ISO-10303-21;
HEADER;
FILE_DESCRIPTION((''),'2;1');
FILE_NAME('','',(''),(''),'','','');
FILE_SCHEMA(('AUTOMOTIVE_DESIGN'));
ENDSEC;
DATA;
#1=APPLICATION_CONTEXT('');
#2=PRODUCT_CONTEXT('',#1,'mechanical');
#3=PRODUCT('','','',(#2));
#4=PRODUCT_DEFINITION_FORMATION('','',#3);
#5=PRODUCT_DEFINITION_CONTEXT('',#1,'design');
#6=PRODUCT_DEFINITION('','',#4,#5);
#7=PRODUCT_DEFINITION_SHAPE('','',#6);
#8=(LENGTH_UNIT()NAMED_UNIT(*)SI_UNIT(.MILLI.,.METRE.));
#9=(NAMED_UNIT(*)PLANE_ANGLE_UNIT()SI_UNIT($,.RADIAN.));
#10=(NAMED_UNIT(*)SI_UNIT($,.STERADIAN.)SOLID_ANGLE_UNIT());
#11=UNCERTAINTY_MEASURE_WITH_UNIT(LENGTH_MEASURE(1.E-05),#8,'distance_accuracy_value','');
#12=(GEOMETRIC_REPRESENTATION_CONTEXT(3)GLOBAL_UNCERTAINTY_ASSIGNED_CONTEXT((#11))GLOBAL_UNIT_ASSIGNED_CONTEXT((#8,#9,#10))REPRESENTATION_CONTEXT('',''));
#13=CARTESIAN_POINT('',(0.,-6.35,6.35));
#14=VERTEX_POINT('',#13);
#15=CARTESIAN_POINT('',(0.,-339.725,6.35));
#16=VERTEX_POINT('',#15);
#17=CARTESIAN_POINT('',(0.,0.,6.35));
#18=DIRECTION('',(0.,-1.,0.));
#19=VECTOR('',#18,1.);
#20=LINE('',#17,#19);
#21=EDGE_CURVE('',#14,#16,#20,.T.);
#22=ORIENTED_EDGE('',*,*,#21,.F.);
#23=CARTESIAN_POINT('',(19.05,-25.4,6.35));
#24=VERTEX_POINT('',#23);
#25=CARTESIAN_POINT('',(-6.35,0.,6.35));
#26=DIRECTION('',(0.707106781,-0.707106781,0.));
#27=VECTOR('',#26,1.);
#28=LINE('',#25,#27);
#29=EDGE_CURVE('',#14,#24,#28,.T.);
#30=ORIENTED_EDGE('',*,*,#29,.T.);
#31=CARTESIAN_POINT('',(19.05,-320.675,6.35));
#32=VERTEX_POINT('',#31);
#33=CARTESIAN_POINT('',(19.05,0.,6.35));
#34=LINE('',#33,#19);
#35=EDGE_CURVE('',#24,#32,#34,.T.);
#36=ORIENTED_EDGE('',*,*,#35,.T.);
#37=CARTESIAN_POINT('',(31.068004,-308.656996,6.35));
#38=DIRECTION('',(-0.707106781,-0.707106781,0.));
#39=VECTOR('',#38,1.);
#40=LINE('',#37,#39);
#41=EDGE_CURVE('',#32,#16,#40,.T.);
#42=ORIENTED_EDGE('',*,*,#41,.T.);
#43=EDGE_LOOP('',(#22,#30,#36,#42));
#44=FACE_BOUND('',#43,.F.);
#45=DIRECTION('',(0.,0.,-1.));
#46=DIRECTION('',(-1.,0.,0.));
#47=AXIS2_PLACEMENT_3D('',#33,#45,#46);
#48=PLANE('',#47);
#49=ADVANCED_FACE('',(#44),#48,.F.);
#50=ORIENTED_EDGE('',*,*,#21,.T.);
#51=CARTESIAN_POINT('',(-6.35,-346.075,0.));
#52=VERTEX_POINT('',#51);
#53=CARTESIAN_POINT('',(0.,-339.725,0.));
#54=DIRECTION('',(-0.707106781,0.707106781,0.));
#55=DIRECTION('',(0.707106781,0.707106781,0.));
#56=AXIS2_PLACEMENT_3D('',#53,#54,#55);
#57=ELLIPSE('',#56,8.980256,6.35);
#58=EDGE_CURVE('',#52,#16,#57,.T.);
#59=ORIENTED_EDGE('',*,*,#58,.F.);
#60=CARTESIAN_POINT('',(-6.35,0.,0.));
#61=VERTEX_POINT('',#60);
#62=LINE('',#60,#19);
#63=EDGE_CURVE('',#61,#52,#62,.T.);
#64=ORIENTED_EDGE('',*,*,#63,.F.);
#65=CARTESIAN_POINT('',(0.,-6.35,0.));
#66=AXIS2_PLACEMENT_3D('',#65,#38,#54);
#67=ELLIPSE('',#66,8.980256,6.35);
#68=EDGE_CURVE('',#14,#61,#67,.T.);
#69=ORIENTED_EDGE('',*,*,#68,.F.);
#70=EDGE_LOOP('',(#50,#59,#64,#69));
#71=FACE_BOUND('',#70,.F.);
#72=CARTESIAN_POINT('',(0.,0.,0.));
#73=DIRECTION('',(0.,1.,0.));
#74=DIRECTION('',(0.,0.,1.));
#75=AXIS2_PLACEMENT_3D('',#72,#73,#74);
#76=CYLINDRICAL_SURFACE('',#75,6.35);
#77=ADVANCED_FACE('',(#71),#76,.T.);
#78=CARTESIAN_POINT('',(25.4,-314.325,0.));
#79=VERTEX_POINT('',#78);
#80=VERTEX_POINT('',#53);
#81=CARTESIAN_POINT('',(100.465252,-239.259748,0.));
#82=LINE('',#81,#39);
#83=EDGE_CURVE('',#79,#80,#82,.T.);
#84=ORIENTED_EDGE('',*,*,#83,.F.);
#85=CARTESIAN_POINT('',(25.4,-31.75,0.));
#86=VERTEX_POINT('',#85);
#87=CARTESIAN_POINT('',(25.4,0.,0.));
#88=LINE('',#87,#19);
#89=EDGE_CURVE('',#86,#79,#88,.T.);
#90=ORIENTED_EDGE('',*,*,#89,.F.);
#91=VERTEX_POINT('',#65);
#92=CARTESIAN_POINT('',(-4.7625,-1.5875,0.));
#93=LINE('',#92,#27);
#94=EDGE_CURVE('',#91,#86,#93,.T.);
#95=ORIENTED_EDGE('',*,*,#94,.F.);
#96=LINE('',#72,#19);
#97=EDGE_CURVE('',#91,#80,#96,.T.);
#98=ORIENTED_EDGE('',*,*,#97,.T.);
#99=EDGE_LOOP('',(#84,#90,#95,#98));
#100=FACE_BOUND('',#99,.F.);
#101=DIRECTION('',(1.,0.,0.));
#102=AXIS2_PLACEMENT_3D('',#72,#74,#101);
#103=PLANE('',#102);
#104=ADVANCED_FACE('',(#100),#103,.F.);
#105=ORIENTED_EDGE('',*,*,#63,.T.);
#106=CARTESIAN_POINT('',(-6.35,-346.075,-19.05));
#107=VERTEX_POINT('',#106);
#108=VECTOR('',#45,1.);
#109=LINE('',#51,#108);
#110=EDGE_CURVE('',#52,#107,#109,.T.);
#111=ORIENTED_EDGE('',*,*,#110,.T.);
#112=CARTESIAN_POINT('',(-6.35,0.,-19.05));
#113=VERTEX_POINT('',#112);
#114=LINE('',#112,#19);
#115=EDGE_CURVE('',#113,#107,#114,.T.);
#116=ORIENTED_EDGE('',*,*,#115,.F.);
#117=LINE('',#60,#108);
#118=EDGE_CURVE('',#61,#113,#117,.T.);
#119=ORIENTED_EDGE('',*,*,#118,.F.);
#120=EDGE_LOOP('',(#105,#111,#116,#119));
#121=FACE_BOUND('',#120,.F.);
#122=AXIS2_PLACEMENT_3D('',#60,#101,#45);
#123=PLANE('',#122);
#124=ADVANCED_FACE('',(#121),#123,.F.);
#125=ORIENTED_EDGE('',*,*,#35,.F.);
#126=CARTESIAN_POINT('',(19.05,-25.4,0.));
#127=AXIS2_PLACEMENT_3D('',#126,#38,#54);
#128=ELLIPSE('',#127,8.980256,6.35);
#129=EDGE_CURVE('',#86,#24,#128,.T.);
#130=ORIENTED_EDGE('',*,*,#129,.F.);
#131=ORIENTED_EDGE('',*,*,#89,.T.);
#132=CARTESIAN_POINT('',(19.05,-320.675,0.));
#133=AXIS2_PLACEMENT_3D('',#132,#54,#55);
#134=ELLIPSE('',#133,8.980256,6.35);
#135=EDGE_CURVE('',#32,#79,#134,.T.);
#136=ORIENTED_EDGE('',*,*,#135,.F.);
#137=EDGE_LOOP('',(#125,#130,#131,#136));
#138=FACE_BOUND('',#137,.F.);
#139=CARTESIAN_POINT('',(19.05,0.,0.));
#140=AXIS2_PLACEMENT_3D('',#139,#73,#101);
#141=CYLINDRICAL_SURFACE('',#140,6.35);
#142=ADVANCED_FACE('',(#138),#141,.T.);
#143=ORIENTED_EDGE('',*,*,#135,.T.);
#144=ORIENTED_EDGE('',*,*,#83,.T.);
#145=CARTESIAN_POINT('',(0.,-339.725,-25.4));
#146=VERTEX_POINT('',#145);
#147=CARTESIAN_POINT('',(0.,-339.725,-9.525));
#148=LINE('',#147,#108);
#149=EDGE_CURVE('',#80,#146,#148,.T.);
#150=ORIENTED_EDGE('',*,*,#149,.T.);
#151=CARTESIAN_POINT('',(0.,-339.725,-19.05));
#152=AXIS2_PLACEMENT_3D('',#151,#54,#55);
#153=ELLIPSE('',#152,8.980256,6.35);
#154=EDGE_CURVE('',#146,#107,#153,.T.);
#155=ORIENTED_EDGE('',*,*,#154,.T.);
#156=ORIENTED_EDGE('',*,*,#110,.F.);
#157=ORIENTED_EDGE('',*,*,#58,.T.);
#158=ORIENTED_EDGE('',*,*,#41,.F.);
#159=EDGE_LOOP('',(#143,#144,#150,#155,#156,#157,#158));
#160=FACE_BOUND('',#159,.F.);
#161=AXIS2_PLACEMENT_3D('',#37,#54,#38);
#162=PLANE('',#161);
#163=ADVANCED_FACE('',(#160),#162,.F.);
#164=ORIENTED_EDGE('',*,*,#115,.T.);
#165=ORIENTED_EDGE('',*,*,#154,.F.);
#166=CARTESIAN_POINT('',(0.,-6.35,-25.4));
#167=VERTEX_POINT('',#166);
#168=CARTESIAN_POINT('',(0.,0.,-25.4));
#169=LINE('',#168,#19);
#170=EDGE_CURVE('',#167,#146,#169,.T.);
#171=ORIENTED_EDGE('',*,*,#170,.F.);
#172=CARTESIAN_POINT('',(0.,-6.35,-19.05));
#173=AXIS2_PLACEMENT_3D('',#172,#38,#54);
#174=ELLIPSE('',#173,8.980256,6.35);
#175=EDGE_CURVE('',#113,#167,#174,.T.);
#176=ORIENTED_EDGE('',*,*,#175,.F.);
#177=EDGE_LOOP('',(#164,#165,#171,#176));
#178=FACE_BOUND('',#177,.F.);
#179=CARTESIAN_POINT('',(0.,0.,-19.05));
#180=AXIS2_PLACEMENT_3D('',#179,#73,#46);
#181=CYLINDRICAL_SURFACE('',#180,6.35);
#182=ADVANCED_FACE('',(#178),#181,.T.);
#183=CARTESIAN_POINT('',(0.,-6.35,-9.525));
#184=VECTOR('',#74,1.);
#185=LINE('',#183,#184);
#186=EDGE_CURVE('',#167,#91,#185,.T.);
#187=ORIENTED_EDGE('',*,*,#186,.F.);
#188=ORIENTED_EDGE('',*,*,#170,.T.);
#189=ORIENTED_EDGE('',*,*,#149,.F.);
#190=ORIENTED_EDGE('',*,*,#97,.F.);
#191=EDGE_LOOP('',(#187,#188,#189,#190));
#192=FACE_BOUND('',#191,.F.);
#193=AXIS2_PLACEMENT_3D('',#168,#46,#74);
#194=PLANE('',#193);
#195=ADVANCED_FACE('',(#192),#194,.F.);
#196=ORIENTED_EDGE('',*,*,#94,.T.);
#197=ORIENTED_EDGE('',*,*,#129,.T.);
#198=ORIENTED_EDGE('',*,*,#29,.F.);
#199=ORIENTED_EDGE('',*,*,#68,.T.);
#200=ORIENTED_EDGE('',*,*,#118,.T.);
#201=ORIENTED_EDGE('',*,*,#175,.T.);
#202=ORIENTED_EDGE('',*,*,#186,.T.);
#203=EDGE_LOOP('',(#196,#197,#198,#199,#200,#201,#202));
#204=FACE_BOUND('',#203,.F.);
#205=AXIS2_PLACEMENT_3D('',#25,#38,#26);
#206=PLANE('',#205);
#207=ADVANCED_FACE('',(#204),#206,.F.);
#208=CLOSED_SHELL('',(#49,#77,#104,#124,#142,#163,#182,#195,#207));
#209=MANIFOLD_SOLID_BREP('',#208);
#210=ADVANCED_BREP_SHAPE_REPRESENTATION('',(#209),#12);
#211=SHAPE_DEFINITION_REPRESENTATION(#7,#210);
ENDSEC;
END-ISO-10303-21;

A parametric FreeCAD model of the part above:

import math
import FreeCAD as App
import Part
import Sketcher
Q = App.Units.Quantity

doc = App.newDocument("Part")
body = doc.addObject("PartDesign::Body", "Body")

# Sketch on XZ plane
sketch1 = body.newObject("Sketcher::SketchObject", "Sketch")
sketch1.AttachmentSupport = (doc.getObject("XZ_Plane"), [""])
sketch1.MapMode = "FlatFace"
sketch1.addGeometry([
    Part.LineSegment(App.Vector(0, -25.4, 0), App.Vector(0, 0, 0)),  # 0
    Part.LineSegment(App.Vector(0, 0, 0), App.Vector(25.4, 0, 0)),  # 1
    Part.ArcOfCircle(Part.Circle(App.Vector(19.05, 0, 0), App.Vector(0, 0, 1), 6.35), math.radians(0), math.radians(90)),  # 2
    Part.LineSegment(App.Vector(19.05, 6.35, 0), App.Vector(0, 6.35, 0)),  # 3
    Part.ArcOfCircle(Part.Circle(App.Vector(0, 0, 0), App.Vector(0, 0, 1), 6.35), math.radians(90), math.radians(180)),  # 4
    Part.LineSegment(App.Vector(-6.35, 0, 0), App.Vector(-6.35, -19.05, 0)),  # 5
    Part.ArcOfCircle(Part.Circle(App.Vector(0, -19.05, 0), App.Vector(0, 0, 1), 6.35), math.radians(180), math.radians(270)),  # 6
], False)
sketch1.addConstraint([
    Sketcher.Constraint("Coincident", 0, 2, 1, 1),
    Sketcher.Constraint("Coincident", 1, 2, 2, 1),
    Sketcher.Constraint("Tangent", 2, 2, 3, 1),
    Sketcher.Constraint("Tangent", 3, 2, 4, 1),
    Sketcher.Constraint("Tangent", 4, 2, 5, 1),
    Sketcher.Constraint("Tangent", 5, 2, 6, 1),
    Sketcher.Constraint("Coincident", 6, 2, 0, 1),
    Sketcher.Constraint("Vertical", 0),
    Sketcher.Constraint("Horizontal", 1),
    Sketcher.Constraint("Horizontal", 3),
    Sketcher.Constraint("Vertical", 5),
    Sketcher.Constraint("Coincident", 4, 3, -1, 1),
    Sketcher.Constraint("Coincident", 0, 2, -1, 1),
    Sketcher.Constraint("Equal", 2, 4),
    Sketcher.Constraint("Equal", 4, 6),
    Sketcher.Constraint("Equal", 1, 0),
    Sketcher.Constraint("DistanceX", 1, 1, 1, 2, Q("1 in")),
    Sketcher.Constraint("Radius", 2, Q("0.25 in")),
])
pad1 = body.newObject("PartDesign::Pad", "Pad")
pad1.Profile = sketch1
pad1.Length = Q("13.625 in")

# Sketch on XY plane
sketch2 = body.newObject("Sketcher::SketchObject", "Sketch001")
sketch2.AttachmentSupport = (doc.getObject("XY_Plane"), [""])
sketch2.MapMode = "FlatFace"
sketch2.AttachmentOffset = App.Placement(App.Vector(0, 0, 0.25 * 25.4), App.Rotation())
sketch2.addGeometry([
    Part.LineSegment(App.Vector(31.068004, -308.656996, 0), App.Vector(-6.35, -346.075, 0)),
    Part.LineSegment(App.Vector(-6.35, -346.075, 0), App.Vector(25.95075, -346.075, 0)),
    Part.LineSegment(App.Vector(25.95075, -346.075, 0), App.Vector(31.068004, -308.656996, 0)),
], False)
sketch2.addConstraint([
    Sketcher.Constraint("Coincident", 0, 2, 1, 1),
    Sketcher.Constraint("Coincident", 1, 2, 2, 1),
    Sketcher.Constraint("Coincident", 2, 2, 0, 1),
    Sketcher.Constraint("Horizontal", 1),
    Sketcher.Constraint("Angle", 0, Q("-135 deg")),
    Sketcher.Constraint("DistanceX", 0, 2, -1, 1, Q("0.25 in")),
    Sketcher.Constraint("DistanceY", 0, 2, -1, 1, Q("13.625 in")),
    Sketcher.Constraint("Distance", 2, 37.766299),
    Sketcher.Constraint("DistanceX", 1, 1, 1, 2, 32.30075),
])
pocket1 = body.newObject("PartDesign::Pocket", "Pocket")
pocket1.Profile = sketch2
pocket1.Type = "ThroughAll"

# Sketch on XY plane
sketch3 = body.newObject("Sketcher::SketchObject", "Sketch002")
sketch3.AttachmentSupport = (doc.getObject("XY_Plane"), [""])
sketch3.MapMode = "FlatFace"
sketch3.AttachmentOffset = App.Placement(App.Vector(0, 0, 0.25 * 25.4), App.Rotation())
sketch3.addGeometry([
    Part.LineSegment(App.Vector(25.4, 0, 0), App.Vector(-6.35, 0, 0)),
    Part.LineSegment(App.Vector(-6.35, 0, 0), App.Vector(25.4, -31.75, 0)),
    Part.LineSegment(App.Vector(25.4, -31.75, 0), App.Vector(25.4, 0, 0)),
], False)
sketch3.addConstraint([
    Sketcher.Constraint("Coincident", 0, 2, 1, 1),
    Sketcher.Constraint("Coincident", 1, 2, 2, 1),
    Sketcher.Constraint("Coincident", 2, 2, 0, 1),
    Sketcher.Constraint("Horizontal", 0),
    Sketcher.Constraint("Vertical", 2),
    Sketcher.Constraint("PointOnObject", 0, 2, -1),
    Sketcher.Constraint("Equal", 0, 2),
    Sketcher.Constraint("DistanceX", -1, 1, 1, 2, Q("1 in")),
    Sketcher.Constraint("DistanceX", 0, 2, 0, 1, Q("1.25 in")),
])
pocket2 = body.newObject("PartDesign::Pocket", "Pocket001")
pocket2.Profile = sketch3
pocket2.Length = Q("1.5 in")

doc.recompute()
